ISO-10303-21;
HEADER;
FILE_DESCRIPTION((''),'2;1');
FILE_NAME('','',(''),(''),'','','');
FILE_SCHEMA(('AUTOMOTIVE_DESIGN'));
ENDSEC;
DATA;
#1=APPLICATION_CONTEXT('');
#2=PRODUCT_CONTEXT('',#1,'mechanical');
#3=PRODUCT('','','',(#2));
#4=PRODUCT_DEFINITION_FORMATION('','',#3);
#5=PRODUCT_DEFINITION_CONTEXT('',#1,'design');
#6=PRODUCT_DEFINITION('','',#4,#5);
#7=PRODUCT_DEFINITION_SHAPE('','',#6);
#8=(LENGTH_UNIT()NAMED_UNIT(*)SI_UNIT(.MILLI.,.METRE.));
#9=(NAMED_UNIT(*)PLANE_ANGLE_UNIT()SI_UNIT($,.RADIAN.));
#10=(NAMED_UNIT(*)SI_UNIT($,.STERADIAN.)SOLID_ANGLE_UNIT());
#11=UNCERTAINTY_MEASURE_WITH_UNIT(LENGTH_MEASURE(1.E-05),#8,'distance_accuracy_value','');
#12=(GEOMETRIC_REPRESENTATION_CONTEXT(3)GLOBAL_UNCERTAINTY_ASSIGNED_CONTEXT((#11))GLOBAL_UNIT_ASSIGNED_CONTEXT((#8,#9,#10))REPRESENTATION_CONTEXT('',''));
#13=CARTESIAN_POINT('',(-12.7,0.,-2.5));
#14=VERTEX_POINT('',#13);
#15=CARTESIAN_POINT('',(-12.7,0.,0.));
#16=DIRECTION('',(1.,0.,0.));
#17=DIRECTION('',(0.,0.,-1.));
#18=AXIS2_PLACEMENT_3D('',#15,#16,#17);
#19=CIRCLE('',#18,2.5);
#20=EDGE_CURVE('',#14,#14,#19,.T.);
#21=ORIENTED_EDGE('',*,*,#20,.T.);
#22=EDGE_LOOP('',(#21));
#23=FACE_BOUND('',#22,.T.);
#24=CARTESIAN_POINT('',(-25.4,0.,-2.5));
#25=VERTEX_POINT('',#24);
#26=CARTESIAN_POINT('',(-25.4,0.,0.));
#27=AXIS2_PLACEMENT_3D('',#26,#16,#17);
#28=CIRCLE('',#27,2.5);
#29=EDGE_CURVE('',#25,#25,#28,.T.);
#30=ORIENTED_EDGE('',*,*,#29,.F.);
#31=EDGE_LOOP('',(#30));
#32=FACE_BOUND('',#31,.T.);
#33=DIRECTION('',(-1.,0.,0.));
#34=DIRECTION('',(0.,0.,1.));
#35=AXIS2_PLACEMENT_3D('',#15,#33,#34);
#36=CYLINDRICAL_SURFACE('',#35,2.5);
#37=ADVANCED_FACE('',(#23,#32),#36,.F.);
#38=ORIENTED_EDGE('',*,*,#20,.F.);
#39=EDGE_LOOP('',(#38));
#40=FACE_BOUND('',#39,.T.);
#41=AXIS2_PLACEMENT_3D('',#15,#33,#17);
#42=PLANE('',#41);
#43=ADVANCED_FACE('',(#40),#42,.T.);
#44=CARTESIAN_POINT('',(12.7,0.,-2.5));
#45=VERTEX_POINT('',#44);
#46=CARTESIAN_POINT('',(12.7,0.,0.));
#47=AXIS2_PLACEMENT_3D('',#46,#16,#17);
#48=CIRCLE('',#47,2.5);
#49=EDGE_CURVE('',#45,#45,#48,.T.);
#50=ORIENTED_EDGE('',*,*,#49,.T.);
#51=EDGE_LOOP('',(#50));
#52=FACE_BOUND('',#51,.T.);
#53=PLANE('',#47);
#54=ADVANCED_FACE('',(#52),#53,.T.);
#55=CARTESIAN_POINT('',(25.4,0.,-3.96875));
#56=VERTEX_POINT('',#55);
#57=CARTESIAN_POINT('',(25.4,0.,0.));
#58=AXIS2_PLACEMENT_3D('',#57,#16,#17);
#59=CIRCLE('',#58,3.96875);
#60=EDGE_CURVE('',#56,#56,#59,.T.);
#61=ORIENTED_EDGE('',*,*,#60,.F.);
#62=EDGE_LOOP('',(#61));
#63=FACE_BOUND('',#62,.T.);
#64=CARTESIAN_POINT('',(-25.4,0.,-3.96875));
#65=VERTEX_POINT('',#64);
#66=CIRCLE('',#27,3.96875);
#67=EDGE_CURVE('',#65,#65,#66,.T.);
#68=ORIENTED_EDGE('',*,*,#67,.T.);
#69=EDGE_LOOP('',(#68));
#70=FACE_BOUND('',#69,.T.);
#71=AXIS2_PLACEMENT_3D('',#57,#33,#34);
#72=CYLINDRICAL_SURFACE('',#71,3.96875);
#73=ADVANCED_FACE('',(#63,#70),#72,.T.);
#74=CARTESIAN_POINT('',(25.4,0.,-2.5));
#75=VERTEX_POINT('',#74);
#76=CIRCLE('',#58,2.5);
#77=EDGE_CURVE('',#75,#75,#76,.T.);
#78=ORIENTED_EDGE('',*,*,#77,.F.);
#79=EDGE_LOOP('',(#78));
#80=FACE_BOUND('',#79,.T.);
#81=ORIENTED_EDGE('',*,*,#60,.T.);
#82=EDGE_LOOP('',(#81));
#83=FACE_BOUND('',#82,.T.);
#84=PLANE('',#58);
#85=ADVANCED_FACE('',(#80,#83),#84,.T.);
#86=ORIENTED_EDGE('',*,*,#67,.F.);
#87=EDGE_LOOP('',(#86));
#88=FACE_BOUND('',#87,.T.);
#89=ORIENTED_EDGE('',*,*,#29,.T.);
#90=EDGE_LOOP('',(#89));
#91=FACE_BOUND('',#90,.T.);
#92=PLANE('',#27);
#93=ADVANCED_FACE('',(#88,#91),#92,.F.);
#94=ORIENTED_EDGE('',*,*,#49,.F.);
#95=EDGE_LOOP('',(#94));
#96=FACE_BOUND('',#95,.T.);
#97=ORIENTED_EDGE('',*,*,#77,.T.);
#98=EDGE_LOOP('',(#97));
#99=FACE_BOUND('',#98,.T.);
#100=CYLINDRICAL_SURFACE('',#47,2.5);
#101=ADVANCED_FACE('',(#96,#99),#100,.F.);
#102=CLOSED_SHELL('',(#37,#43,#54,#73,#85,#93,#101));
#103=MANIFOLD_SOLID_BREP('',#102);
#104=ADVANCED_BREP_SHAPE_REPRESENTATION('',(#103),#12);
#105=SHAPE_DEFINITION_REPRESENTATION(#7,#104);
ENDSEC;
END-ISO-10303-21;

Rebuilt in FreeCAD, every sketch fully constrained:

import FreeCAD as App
import Part
import Sketcher

V = App.Vector
Q = App.Units.Quantity

doc = App.newDocument("Part")
body = doc.addObject("PartDesign::Body", "Body")

sketch1 = body.newObject("Sketcher::SketchObject", "Sketch")
sketch1.AttachmentSupport = (doc.getObject("YZ_Plane"), [""])
sketch1.MapMode = "FlatFace"
sketch1.addGeometry(Part.Circle(V(0, 0, 0), V(0, 0, 1), 4), False)
sketch1.addConstraint(Sketcher.Constraint("Coincident", 0, 3, -1, 1))
sketch1.addConstraint(Sketcher.Constraint("Diameter", 0, Q("0.3125 in")))
pad1 = body.newObject("PartDesign::Pad", "Pad")
pad1.Profile = sketch1
pad1.Length = Q("2 in")
pad1.Midplane = True

sketch2 = body.newObject("Sketcher::SketchObject", "Sketch001")
sketch2.AttachmentSupport = (doc.getObject("YZ_Plane"), [""])
sketch2.MapMode = "FlatFace"
sketch2.AttachmentOffset = App.Placement(V(0, 0, 1 * 25.4), App.Rotation())
sketch2.addGeometry(Part.Circle(V(0, 0, 0), V(0, 0, 1), 2.5), False)
sketch2.addConstraint(Sketcher.Constraint("Coincident", 0, 3, -1, 1))
sketch2.addConstraint(Sketcher.Constraint("Diameter", 0, Q("5 mm")))
pocket1 = body.newObject("PartDesign::Pocket", "Pocket")
pocket1.Profile = sketch2
pocket1.Length = Q("0.5 in")
doc.recompute()

mirrored = body.newObject("PartDesign::Mirrored", "Mirrored")
mirrored.Originals = [pocket1]
mirrored.MirrorPlane = (doc.getObject("YZ_Plane"), [""])
body.Tip = mirrored

doc.recompute()
